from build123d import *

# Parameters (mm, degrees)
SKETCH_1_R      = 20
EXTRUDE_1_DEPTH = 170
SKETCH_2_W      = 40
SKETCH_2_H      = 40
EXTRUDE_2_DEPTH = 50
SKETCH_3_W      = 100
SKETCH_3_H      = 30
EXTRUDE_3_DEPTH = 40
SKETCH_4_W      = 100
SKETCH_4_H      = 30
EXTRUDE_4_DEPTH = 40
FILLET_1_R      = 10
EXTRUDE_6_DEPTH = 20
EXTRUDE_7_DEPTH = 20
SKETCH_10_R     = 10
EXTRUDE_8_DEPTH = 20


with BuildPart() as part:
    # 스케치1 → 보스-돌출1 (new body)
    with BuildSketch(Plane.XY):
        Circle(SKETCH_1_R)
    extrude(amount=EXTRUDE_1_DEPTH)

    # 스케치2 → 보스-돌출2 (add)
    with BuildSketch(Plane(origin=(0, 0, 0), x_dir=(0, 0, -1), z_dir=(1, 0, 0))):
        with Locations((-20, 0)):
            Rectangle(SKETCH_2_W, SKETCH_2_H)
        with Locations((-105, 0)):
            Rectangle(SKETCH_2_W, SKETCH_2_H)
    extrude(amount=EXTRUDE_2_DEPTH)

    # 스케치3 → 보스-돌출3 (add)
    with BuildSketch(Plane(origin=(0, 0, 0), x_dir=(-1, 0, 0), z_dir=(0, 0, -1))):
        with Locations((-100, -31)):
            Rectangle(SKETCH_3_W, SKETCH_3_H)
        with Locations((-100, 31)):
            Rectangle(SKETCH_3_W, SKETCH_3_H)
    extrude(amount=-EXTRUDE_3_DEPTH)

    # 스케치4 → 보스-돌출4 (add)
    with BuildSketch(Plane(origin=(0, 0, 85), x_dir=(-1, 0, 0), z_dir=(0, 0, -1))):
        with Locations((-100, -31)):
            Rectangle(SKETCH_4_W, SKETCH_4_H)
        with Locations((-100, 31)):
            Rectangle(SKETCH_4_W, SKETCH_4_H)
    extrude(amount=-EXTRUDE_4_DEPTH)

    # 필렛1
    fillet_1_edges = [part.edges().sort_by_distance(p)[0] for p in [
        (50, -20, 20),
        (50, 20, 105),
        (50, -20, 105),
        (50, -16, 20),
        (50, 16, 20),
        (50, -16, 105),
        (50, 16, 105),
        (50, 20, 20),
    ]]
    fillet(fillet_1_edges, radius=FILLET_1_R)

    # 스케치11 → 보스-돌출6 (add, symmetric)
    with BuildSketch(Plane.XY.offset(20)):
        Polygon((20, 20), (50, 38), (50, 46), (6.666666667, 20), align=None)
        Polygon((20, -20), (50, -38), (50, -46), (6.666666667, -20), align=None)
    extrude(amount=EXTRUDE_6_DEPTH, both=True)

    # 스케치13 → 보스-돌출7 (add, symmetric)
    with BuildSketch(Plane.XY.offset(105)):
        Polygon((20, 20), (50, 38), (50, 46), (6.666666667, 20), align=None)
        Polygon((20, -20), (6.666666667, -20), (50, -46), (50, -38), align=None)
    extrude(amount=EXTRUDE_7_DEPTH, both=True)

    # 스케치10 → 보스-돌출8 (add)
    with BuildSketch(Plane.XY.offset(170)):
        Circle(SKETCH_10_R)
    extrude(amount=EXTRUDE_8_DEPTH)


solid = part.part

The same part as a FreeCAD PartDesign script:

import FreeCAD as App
import Part
import Sketcher


def edges_at(feature, points):
    """Names of the edges that pass closest to the given points."""
    edges = feature.Shape.Edges
    near = lambda p: min(range(len(edges)), key=lambda i: edges[i].distToShape(Part.Vertex(*p))[0])
    return sorted({f"Edge{near(p) + 1}" for p in points})


def add_polygon(sketch, points):
    """Adds a closed chain of lines whose ends are joined by coincident constraints."""
    first, n = sketch.GeometryCount, len(points)
    for a, b in zip(points, points[1:] + points[:1]):
        sketch.addGeometry(Part.LineSegment(App.Vector(*a, 0), App.Vector(*b, 0)), False)
    for i in range(n):
        sketch.addConstraint(Sketcher.Constraint("Coincident", first + i, 2, first + (i + 1) % n, 1))

doc = App.newDocument("Part")
params = doc.addObject("Spreadsheet::Sheet", "Params")
for row, (alias, value) in enumerate([
    ("sketch1_diameter", "40 mm"),
    ("pad1_length", "170 mm"),
    ("sketch2_width", "40 mm"),
    ("pad2_length", "50 mm"),
    ("sketch3_width", "100 mm"),
    ("sketch3_height", "30 mm"),
    ("pad3_length", "40 mm"),
    ("sketch4_width", "100 mm"),
    ("sketch4_height", "30 mm"),
    ("pad4_length", "40 mm"),
    ("fillet_radius", "10 mm"),
    ("sketch5_height", "8 mm"),
    ("pad5_length", "40 mm"),
    ("sketch6_height", "8 mm"),
    ("pad6_length", "40 mm"),
    ("sketch7_diameter", "20 mm"),
    ("pad7_length", "20 mm"),
], start=1):
    params.set(f"A{row}", alias)
    params.set(f"B{row}", "=" + value)
    params.setAlias(f"B{row}", alias)

body = doc.addObject("PartDesign::Body", "Body")

sketch1 = doc.addObject("Sketcher::SketchObject", "Sketch")
body.addObject(sketch1)
sketch1.AttachmentSupport = (doc.XY_Plane, [""])
sketch1.MapMode = "FlatFace"
sketch1.addGeometry(Part.Circle(App.Vector(0, 0, 0), App.Vector(0, 0, 1), 20), False)
sketch1.addConstraint(Sketcher.Constraint("Coincident", 0, 3, -1, 1))
sketch1.addConstraint(Sketcher.Constraint("Diameter", 0, 40.0))
sketch1.setExpression("Constraints[1]", "Params.sketch1_diameter")
pad1 = doc.addObject("PartDesign::Pad", "Pad")
body.addObject(pad1)
pad1.Profile = sketch1
pad1.setExpression("Length", "Params.pad1_length")

sketch2 = doc.addObject("Sketcher::SketchObject", "Sketch001")
body.addObject(sketch2)
sketch2.AttachmentSupport = (doc.YZ_Plane, [""])
sketch2.MapMode = "FlatFace"
add_polygon(sketch2, [(20, 40), (-20, 40), (-20, 0), (20, 0)])
add_polygon(sketch2, [(20, 125), (-20, 125), (-20, 85), (20, 85)])
sketch2.addConstraint(Sketcher.Constraint("Horizontal", 0))
sketch2.addConstraint(Sketcher.Constraint("Vertical", 1))
sketch2.addConstraint(Sketcher.Constraint("Horizontal", 2))
sketch2.addConstraint(Sketcher.Constraint("Vertical", 3))
sketch2.addConstraint(Sketcher.Constraint("Horizontal", 4))
sketch2.addConstraint(Sketcher.Constraint("Vertical", 5))
sketch2.addConstraint(Sketcher.Constraint("Horizontal", 6))
sketch2.addConstraint(Sketcher.Constraint("Vertical", 7))
sketch2.addConstraint(Sketcher.Constraint("Symmetric", 1, 2, 2, 2, -1, 1))
sketch2.addConstraint(Sketcher.Constraint("Vertical", 1, 2, 4, 2))
sketch2.addConstraint(Sketcher.Constraint("Vertical", 3, 2, 6, 2))
sketch2.addConstraint(Sketcher.Constraint("Equal", 6, 1))
sketch2.addConstraint(Sketcher.Constraint("Equal", 3, 5))
sketch2.addConstraint(Sketcher.Constraint("DistanceX", 0, 2, 0, 1, 40.0))
sketch2.addConstraint(Sketcher.Constraint("DistanceY", -1, 1, 4, 2, 125.0))
sketch2.setExpression("Constraints[21]", "Params.sketch2_width")
pad2 = doc.addObject("PartDesign::Pad", "Pad001")
body.addObject(pad2)
pad2.Profile = sketch2
pad2.setExpression("Length", "Params.pad2_length")

sketch3 = doc.addObject("Sketcher::SketchObject", "Sketch002")
body.addObject(sketch3)
sketch3.AttachmentSupport = (doc.XY_Plane, [""])
sketch3.MapMode = "FlatFace"
add_polygon(sketch3, [(150, -16), (150, -46), (50, -46), (50, -16)])
add_polygon(sketch3, [(150, 46), (150, 16), (50, 16), (50, 46)])
sketch3.addConstraint(Sketcher.Constraint("Vertical", 0))
sketch3.addConstraint(Sketcher.Constraint("Horizontal", 1))
sketch3.addConstraint(Sketcher.Constraint("Vertical", 2))
sketch3.addConstraint(Sketcher.Constraint("Horizontal", 3))
sketch3.addConstraint(Sketcher.Constraint("Vertical", 4))
sketch3.addConstraint(Sketcher.Constraint("Horizontal", 5))
sketch3.addConstraint(Sketcher.Constraint("Vertical", 6))
sketch3.addConstraint(Sketcher.Constraint("Horizontal", 7))
sketch3.addConstraint(Sketcher.Constraint("Symmetric", 3, 2, 4, 2, -1))
sketch3.addConstraint(Sketcher.Constraint("Symmetric", 1, 2, 6, 2, -1))
sketch3.addConstraint(Sketcher.Constraint("DistanceX", 1, 2, 1, 1, 100.0))
sketch3.addConstraint(Sketcher.Constraint("DistanceY", 0, 2, 0, 1, 30.0))
sketch3.addConstraint(Sketcher.Constraint("DistanceX", -1, 1, 0, 2, 150.0))
sketch3.addConstraint(Sketcher.Constraint("DistanceY", 0, 2, -1, 1, 46.0))
sketch3.setExpression("Constraints[18]", "Params.sketch3_width")
sketch3.setExpression("Constraints[19]", "Params.sketch3_height")
pad3 = doc.addObject("PartDesign::Pad", "Pad002")
body.addObject(pad3)
pad3.Profile = sketch3
pad3.setExpression("Length", "Params.pad3_length")

sketch4 = doc.addObject("Sketcher::SketchObject", "Sketch003")
body.addObject(sketch4)
sketch4.AttachmentSupport = (doc.XY_Plane, [""])
sketch4.MapMode = "FlatFace"
sketch4.AttachmentOffset = App.Placement(App.Vector(0, 0, 85), App.Rotation())
add_polygon(sketch4, [(150, -16), (150, -46), (50, -46), (50, -16)])
add_polygon(sketch4, [(150, 46), (150, 16), (50, 16), (50, 46)])
sketch4.addConstraint(Sketcher.Constraint("Vertical", 0))
sketch4.addConstraint(Sketcher.Constraint("Horizontal", 1))
sketch4.addConstraint(Sketcher.Constraint("Vertical", 2))
sketch4.addConstraint(Sketcher.Constraint("Horizontal", 3))
sketch4.addConstraint(Sketcher.Constraint("Vertical", 4))
sketch4.addConstraint(Sketcher.Constraint("Horizontal", 5))
sketch4.addConstraint(Sketcher.Constraint("Vertical", 6))
sketch4.addConstraint(Sketcher.Constraint("Horizontal", 7))
sketch4.addConstraint(Sketcher.Constraint("Symmetric", 3, 2, 4, 2, -1))
sketch4.addConstraint(Sketcher.Constraint("Symmetric", 1, 2, 6, 2, -1))
sketch4.addConstraint(Sketcher.Constraint("DistanceX", 1, 2, 1, 1, 100.0))
sketch4.addConstraint(Sketcher.Constraint("DistanceY", 0, 2, 0, 1, 30.0))
sketch4.addConstraint(Sketcher.Constraint("DistanceX", -1, 1, 0, 2, 150.0))
sketch4.addConstraint(Sketcher.Constraint("DistanceY", 0, 2, -1, 1, 46.0))
sketch4.setExpression("Constraints[18]", "Params.sketch4_width")
sketch4.setExpression("Constraints[19]", "Params.sketch4_height")
pad4 = doc.addObject("PartDesign::Pad", "Pad003")
body.addObject(pad4)
pad4.Profile = sketch4
pad4.setExpression("Length", "Params.pad4_length")
doc.recompute()

fillet = doc.addObject("PartDesign::Fillet", "Fillet")
body.addObject(fillet)
fillet.Base = (pad4, edges_at(pad4, [
    (50, -20, 20),
    (50, 20, 105),
    (50, -20, 105),
    (50, -16, 20),
    (50, 16, 20),
    (50, -16, 105),
    (50, 16, 105),
    (50, 20, 20),
]))
fillet.setExpression("Radius", "Params.fillet_radius")

sketch5 = doc.addObject("Sketcher::SketchObject", "Sketch004")
body.addObject(sketch5)
sketch5.AttachmentSupport = (doc.XY_Plane, [""])
sketch5.MapMode = "FlatFace"
sketch5.AttachmentOffset = App.Placement(App.Vector(0, 0, 20), App.Rotation())
add_polygon(sketch5, [(20, 20), (50, 38), (50, 46), (7, 20)])
add_polygon(sketch5, [(50, -38), (20, -20), (7, -20), (50, -46)])
sketch5.addConstraint(Sketcher.Constraint("Vertical", 1))
sketch5.addConstraint(Sketcher.Constraint("Horizontal", 3))
sketch5.addConstraint(Sketcher.Constraint("Horizontal", 5))
sketch5.addConstraint(Sketcher.Constraint("Vertical", 7))
sketch5.addConstraint(Sketcher.Constraint("Symmetric", 3, 2, 4, 2, -1))
sketch5.addConstraint(Sketcher.Constraint("Symmetric", 1, 2, 6, 2, -1))
sketch5.addConstraint(Sketcher.Constraint("Parallel", 0, 2))
sketch5.addConstraint(Sketcher.Constraint("Parallel", 4, 6))
sketch5.addConstraint(Sketcher.Constraint("Vertical", 2, 2, 5, 2))
sketch5.addConstraint(Sketcher.Constraint("DistanceY", 1, 1, 1, 2, 8.0))
sketch5.addConstraint(Sketcher.Constraint("DistanceX", -1, 1, 0, 2, 50.0))
sketch5.addConstraint(Sketcher.Constraint("DistanceY", -1, 1, 0, 2, 38.0))
sketch5.addConstraint(Sketcher.Constraint("DistanceY", -1, 1, 2, 2, 20.0))
sketch5.addConstraint(Sketcher.Constraint("DistanceX", -1, 1, 3, 2, 20.0))
sketch5.setExpression("Constraints[17]", "Params.sketch5_height")
pad5 = doc.addObject("PartDesign::Pad", "Pad004")
body.addObject(pad5)
pad5.Profile = sketch5
pad5.setExpression("Length", "Params.pad5_length")
pad5.Midplane = True

sketch6 = doc.addObject("Sketcher::SketchObject", "Sketch005")
body.addObject(sketch6)
sketch6.AttachmentSupport = (doc.XY_Plane, [""])
sketch6.MapMode = "FlatFace"
sketch6.AttachmentOffset = App.Placement(App.Vector(0, 0, 105), App.Rotation())
add_polygon(sketch6, [(20, 20), (50, 38), (50, 46), (7, 20)])
add_polygon(sketch6, [(20, -20), (7, -20), (50, -46), (50, -38)])
sketch6.addConstraint(Sketcher.Constraint("Vertical", 1))
sketch6.addConstraint(Sketcher.Constraint("Horizontal", 3))
sketch6.addConstraint(Sketcher.Constraint("Horizontal", 4))
sketch6.addConstraint(Sketcher.Constraint("Vertical", 6))
sketch6.addConstraint(Sketcher.Constraint("Symmetric", 2, 2, 4, 2, -1))
sketch6.addConstraint(Sketcher.Constraint("Symmetric", 1, 2, 5, 2, -1))
sketch6.addConstraint(Sketcher.Constraint("Parallel", 0, 2))
sketch6.addConstraint(Sketcher.Constraint("Parallel", 5, 7))
sketch6.addConstraint(Sketcher.Constraint("Vertical", 3, 2, 7, 2))
sketch6.addConstraint(Sketcher.Constraint("DistanceY", 1, 1, 1, 2, 8.0))
sketch6.addConstraint(Sketcher.Constraint("DistanceX", -1, 1, 0, 2, 50.0))
sketch6.addConstraint(Sketcher.Constraint("DistanceY", -1, 1, 0, 2, 38.0))
sketch6.addConstraint(Sketcher.Constraint("DistanceY", -1, 1, 2, 2, 20.0))
sketch6.addConstraint(Sketcher.Constraint("DistanceX", -1, 1, 3, 2, 20.0))
sketch6.setExpression("Constraints[17]", "Params.sketch6_height")
pad6 = doc.addObject("PartDesign::Pad", "Pad005")
body.addObject(pad6)
pad6.Profile = sketch6
pad6.setExpression("Length", "Params.pad6_length")
pad6.Midplane = True

sketch7 = doc.addObject("Sketcher::SketchObject", "Sketch006")
body.addObject(sketch7)
sketch7.AttachmentSupport = (doc.XY_Plane, [""])
sketch7.MapMode = "FlatFace"
sketch7.AttachmentOffset = App.Placement(App.Vector(0, 0, 170), App.Rotation())
sketch7.addGeometry(Part.Circle(App.Vector(0, 0, 0), App.Vector(0, 0, 1), 10), False)
sketch7.addConstraint(Sketcher.Constraint("Coincident", 0, 3, -1, 1))
sketch7.addConstraint(Sketcher.Constraint("Diameter", 0, 20.0))
sketch7.setExpression("Constraints[1]", "Params.sketch7_diameter")
pad7 = doc.addObject("PartDesign::Pad", "Pad006")
body.addObject(pad7)
pad7.Profile = sketch7
pad7.setExpression("Length", "Params.pad7_length")

doc.recompute()
